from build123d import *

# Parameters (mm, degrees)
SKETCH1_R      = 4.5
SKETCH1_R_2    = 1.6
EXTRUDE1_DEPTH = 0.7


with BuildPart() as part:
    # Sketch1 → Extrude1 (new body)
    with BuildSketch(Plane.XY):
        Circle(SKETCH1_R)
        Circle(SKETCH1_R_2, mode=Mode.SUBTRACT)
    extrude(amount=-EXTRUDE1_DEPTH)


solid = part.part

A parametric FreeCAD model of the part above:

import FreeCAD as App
import Part
import Sketcher
Q = App.Units.Quantity

doc = App.newDocument("Part")
body = doc.addObject("PartDesign::Body", "Body")

# Sketch on XY plane
sketch1 = doc.addObject("Sketcher::SketchObject", "Sketch")
body.addObject(sketch1)
sketch1.AttachmentSupport = (doc.XY_Plane, [""])
sketch1.MapMode = "FlatFace"
sketch1.addGeometry([
    Part.Circle(App.Vector(0, 0, 0), App.Vector(0, 0, 1), 4.5),
    Part.Circle(App.Vector(0, 0, 0), App.Vector(0, 0, 1), 1.6),
], False)
sketch1.addConstraint([
    Sketcher.Constraint("Coincident", 0, 3, -1, 1),
    Sketcher.Constraint("Coincident", 1, 3, -1, 1),
    Sketcher.Constraint("Diameter", 0, Q("9 mm")),
    Sketcher.Constraint("Diameter", 1, Q("3.2 mm")),
])
pad1 = doc.addObject("PartDesign::Pad", "Pad")
body.addObject(pad1)
pad1.Profile = sketch1
pad1.Length = 0.7
pad1.Reversed = True

doc.recompute()
